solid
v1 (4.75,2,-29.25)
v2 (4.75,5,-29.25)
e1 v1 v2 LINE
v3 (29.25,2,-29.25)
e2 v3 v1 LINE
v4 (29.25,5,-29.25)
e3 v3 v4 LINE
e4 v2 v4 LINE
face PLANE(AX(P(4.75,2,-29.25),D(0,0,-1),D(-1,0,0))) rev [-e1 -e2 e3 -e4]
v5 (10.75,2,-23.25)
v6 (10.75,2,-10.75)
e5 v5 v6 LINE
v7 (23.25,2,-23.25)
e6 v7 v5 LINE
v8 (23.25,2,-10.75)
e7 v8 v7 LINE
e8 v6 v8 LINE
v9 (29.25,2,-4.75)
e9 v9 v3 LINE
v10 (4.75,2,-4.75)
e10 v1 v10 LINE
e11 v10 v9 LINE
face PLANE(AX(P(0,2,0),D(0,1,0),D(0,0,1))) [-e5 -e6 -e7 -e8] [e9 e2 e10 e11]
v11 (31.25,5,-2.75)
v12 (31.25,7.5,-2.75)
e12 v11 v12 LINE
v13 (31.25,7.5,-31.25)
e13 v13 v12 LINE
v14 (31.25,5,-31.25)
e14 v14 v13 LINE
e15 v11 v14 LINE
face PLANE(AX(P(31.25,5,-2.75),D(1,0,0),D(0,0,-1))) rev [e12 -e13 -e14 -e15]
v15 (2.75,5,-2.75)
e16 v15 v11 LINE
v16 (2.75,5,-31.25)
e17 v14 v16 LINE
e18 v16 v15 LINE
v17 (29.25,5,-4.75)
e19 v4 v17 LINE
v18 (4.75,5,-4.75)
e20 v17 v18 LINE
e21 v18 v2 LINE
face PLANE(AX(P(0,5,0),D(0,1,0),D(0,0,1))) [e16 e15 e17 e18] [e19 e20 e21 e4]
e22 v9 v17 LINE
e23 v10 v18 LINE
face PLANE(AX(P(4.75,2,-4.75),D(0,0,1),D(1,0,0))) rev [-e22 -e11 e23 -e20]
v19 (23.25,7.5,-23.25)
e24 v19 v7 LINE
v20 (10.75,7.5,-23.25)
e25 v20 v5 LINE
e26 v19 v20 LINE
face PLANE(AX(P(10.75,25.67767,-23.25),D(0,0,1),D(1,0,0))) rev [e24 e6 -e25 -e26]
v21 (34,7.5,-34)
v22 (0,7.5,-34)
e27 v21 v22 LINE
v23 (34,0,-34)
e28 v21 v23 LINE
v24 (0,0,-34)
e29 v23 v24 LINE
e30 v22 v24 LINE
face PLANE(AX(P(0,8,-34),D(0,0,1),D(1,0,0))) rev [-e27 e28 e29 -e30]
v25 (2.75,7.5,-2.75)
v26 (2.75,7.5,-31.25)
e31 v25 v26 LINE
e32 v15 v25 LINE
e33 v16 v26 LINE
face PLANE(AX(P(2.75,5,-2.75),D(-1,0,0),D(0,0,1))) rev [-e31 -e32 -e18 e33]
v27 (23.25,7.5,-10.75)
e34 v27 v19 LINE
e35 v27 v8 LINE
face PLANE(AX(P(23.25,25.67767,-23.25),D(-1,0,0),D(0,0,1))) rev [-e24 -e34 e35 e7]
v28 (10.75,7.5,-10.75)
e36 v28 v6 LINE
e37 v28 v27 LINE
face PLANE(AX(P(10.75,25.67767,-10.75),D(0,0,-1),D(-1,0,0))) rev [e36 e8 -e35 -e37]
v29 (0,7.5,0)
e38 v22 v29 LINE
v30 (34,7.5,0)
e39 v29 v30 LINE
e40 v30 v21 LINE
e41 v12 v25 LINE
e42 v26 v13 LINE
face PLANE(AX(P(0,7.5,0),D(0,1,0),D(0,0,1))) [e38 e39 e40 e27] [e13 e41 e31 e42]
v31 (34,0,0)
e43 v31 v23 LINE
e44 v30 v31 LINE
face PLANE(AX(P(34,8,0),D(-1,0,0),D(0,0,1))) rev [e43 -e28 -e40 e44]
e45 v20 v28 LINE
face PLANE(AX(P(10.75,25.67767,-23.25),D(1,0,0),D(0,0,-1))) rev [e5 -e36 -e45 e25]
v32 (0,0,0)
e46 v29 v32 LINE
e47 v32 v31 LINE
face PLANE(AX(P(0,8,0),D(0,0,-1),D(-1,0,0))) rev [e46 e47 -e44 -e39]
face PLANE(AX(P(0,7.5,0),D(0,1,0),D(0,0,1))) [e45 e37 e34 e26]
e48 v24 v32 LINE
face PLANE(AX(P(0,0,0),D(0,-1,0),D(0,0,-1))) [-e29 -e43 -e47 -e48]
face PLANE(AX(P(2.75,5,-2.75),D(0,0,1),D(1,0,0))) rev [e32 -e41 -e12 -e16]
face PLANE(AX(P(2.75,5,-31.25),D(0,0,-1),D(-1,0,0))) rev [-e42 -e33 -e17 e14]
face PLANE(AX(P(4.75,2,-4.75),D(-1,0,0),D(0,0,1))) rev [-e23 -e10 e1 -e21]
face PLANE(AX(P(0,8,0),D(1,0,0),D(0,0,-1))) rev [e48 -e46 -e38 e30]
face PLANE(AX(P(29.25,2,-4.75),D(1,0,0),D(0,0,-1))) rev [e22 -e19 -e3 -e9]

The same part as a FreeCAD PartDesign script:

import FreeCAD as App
import Part
import Sketcher
from FreeCAD import Vector


def add_polygon(sketch, points):
    """Adds a closed chain of lines whose ends are joined by coincident constraints."""
    first, n = sketch.GeometryCount, len(points)
    for a, b in zip(points, points[1:] + points[:1]):
        sketch.addGeometry(Part.LineSegment(App.Vector(*a, 0), App.Vector(*b, 0)), False)
    for i in range(n):
        sketch.addConstraint(Sketcher.Constraint("Coincident", first + i, 2, first + (i + 1) % n, 1))

doc = App.newDocument("Part")
body = doc.addObject("PartDesign::Body", "Body")

sketch1 = doc.addObject("Sketcher::SketchObject", "Sketch")
body.addObject(sketch1)
sketch1.AttachmentSupport = (doc.XZ_Plane, [""])
sketch1.MapMode = "FlatFace"
add_polygon(sketch1, [(0, -34), (0, 0), (34, 0), (34, -34)])
sketch1.addConstraint([
    Sketcher.Constraint("Vertical", 0),
    Sketcher.Constraint("Horizontal", 1),
    Sketcher.Constraint("Vertical", 2),
    Sketcher.Constraint("Horizontal", 3),
    Sketcher.Constraint("Coincident", 0, 2, -1, 1),
    Sketcher.Constraint("Equal", 3, 0),
    Sketcher.Constraint("DistanceX", 1, 1, 1, 2, 34.0),
])
pad1 = doc.addObject("PartDesign::Pad", "Pad")
body.addObject(pad1)
pad1.Profile = sketch1
pad1.Length = 8
pad1.Reversed = True

sketch2 = doc.addObject("Sketcher::SketchObject", "Sketch001")
body.addObject(sketch2)
sketch2.AttachmentSupport = (doc.XZ_Plane, [""])
sketch2.MapMode = "FlatFace"
sketch2.AttachmentOffset = App.Placement(Vector(0, 0, -8), App.Rotation())
add_polygon(sketch2, [(5, -29), (5, -5), (29, -5), (29, -29)])
sketch2.addConstraint([
    Sketcher.Constraint("Vertical", 0),
    Sketcher.Constraint("Horizontal", 1),
    Sketcher.Constraint("Vertical", 2),
    Sketcher.Constraint("Horizontal", 3),
    Sketcher.Constraint("Equal", 3, 0),
    Sketcher.Constraint("DistanceX", 1, 1, 1, 2, 24.5),
    Sketcher.Constraint("DistanceX", -1, 1, 0, 2, 4.75),
    Sketcher.Constraint("DistanceY", 0, 2, -1, 1, 4.75),
])
pocket1 = doc.addObject("PartDesign::Pocket", "Pocket")
body.addObject(pocket1)
pocket1.Profile = sketch2
pocket1.Length = 6
pocket1.Reversed = True

sketch3 = doc.addObject("Sketcher::SketchObject", "Sketch002")
body.addObject(sketch3)
sketch3.AttachmentSupport = (doc.XZ_Plane, [""])
sketch3.MapMode = "FlatFace"
sketch3.AttachmentOffset = App.Placement(Vector(0, 0, -8), App.Rotation())
add_polygon(sketch3, [(3, -31), (3, -3), (31, -3), (31, -31)])
sketch3.addConstraint([
    Sketcher.Constraint("Vertical", 0),
    Sketcher.Constraint("Horizontal", 1),
    Sketcher.Constraint("Vertical", 2),
    Sketcher.Constraint("Horizontal", 3),
    Sketcher.Constraint("Equal", 3, 0),
    Sketcher.Constraint("DistanceX", 1, 1, 1, 2, 28.5),
    Sketcher.Constraint("DistanceX", -1, 1, 0, 2, 2.75),
    Sketcher.Constraint("DistanceY", 0, 2, -1, 1, 2.75),
])
pocket2 = doc.addObject("PartDesign::Pocket", "Pocket001")
body.addObject(pocket2)
pocket2.Profile = sketch3
pocket2.Length = 3
pocket2.Reversed = True

sketch4 = doc.addObject("Sketcher::SketchObject", "Sketch003")
body.addObject(sketch4)
sketch4.AttachmentSupport = (doc.XZ_Plane, [""])
sketch4.MapMode = "FlatFace"
sketch4.AttachmentOffset = App.Placement(Vector(0, 0, -2), App.Rotation())
add_polygon(sketch4, [(11, -23), (11, -11), (23, -11), (23, -23)])
sketch4.addConstraint([
    Sketcher.Constraint("Vertical", 0),
    Sketcher.Constraint("Horizontal", 1),
    Sketcher.Constraint("Vertical", 2),
    Sketcher.Constraint("Horizontal", 3),
    Sketcher.Constraint("Equal", 3, 0),
    Sketcher.Constraint("DistanceX", 1, 1, 1, 2, 12.5),
    Sketcher.Constraint("DistanceX", -1, 1, 0, 2, 10.75),
    Sketcher.Constraint("DistanceY", 0, 2, -1, 1, 10.75),
])
pad2 = doc.addObject("PartDesign::Pad", "Pad001")
body.addObject(pad2)
pad2.Profile = sketch4
pad2.Length = 6
pad2.Reversed = True

sketch5 = doc.addObject("Sketcher::SketchObject", "Sketch004")
body.addObject(sketch5)
sketch5.AttachmentSupport = (doc.XZ_Plane, [""])
sketch5.MapMode = "FlatFace"
sketch5.AttachmentOffset = App.Placement(Vector(0, 0, -8), App.Rotation())
add_polygon(sketch5, [(0, -34), (0, 0), (34, 0), (34, -34)])
add_polygon(sketch5, [(31, -3), (3, -3), (3, -31), (31, -31)])
add_polygon(sketch5, [(11, -23), (11, -11), (23, -11), (23, -23)])
sketch5.addConstraint([
    Sketcher.Constraint("Vertical", 0),
    Sketcher.Constraint("Horizontal", 1),
    Sketcher.Constraint("Vertical", 2),
    Sketcher.Constraint("Horizontal", 3),
    Sketcher.Constraint("Horizontal", 4),
    Sketcher.Constraint("Vertical", 5),
    Sketcher.Constraint("Horizontal", 6),
    Sketcher.Constraint("Vertical", 7),
    Sketcher.Constraint("Vertical", 8),
    Sketcher.Constraint("Horizontal", 9),
    Sketcher.Constraint("Vertical", 10),
    Sketcher.Constraint("Horizontal", 11),
    Sketcher.Constraint("Coincident", 0, 2, -1, 1),
    Sketcher.Constraint("Equal", 3, 0),
    Sketcher.Constraint("Equal", 6, 5),
    Sketcher.Constraint("Equal", 11, 8),
    Sketcher.Constraint("DistanceX", 1, 1, 1, 2, 34.0),
    Sketcher.Constraint("DistanceX", 4, 2, 4, 1, 28.5),
    Sketcher.Constraint("DistanceX", 9, 1, 9, 2, 12.5),
    Sketcher.Constraint("DistanceX", 4, 2, 8, 2, 8.0),
    Sketcher.Constraint("DistanceY", 8, 2, 4, 2, 8.0),
    Sketcher.Constraint("DistanceX", -1, 1, 4, 2, 2.75),
    Sketcher.Constraint("DistanceY", 4, 2, -1, 1, 2.75),
])
pocket3 = doc.addObject("PartDesign::Pocket", "Pocket002")
body.addObject(pocket3)
pocket3.Profile = sketch5
pocket3.Length = 0.5
pocket3.Reversed = True

doc.recompute()
